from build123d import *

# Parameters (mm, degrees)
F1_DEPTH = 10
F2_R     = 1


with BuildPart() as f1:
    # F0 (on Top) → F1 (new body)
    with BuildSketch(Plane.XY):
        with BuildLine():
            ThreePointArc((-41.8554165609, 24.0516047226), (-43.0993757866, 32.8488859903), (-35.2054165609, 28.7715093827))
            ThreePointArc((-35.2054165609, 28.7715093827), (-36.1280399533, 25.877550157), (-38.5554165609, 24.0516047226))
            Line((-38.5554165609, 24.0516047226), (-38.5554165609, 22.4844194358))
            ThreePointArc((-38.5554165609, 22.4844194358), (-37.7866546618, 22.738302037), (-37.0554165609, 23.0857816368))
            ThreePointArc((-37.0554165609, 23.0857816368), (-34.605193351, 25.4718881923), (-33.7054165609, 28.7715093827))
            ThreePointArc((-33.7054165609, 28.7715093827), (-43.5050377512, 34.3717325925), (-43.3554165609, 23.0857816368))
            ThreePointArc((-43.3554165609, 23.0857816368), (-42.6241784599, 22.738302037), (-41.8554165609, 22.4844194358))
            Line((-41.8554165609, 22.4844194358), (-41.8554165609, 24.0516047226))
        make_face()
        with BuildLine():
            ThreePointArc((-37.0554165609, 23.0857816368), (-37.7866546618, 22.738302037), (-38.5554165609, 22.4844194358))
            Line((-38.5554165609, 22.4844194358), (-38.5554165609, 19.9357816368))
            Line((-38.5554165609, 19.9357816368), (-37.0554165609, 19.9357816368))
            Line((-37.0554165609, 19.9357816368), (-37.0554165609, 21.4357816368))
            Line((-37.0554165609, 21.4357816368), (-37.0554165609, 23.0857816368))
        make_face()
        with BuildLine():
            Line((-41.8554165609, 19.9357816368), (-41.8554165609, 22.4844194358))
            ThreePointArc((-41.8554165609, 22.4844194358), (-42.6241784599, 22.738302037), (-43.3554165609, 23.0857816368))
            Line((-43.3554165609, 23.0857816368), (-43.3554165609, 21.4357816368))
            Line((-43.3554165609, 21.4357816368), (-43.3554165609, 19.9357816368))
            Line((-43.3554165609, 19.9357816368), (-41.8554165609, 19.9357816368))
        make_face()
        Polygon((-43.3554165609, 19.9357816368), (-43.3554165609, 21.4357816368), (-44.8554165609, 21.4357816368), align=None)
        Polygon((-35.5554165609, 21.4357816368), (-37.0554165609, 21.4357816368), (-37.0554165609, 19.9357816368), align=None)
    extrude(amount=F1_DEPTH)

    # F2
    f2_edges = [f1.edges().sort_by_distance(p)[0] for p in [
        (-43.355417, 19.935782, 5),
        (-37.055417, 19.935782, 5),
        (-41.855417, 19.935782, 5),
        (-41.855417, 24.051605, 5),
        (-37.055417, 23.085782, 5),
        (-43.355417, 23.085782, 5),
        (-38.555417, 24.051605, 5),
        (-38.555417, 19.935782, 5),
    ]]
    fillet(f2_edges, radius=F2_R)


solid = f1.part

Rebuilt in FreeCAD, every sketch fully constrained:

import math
import FreeCAD as App
import Part
import Sketcher
Q = App.Units.Quantity


def edges_at(feature, points):
    """Names of the edges that pass closest to the given points."""
    edges = feature.Shape.Edges
    near = lambda p: min(range(len(edges)), key=lambda i: edges[i].distToShape(Part.Vertex(*p))[0])
    return sorted({f"Edge{near(p) + 1}" for p in points})

doc = App.newDocument("Part")
params = doc.addObject("Spreadsheet::Sheet", "Params")
for row, (alias, value) in enumerate([
    ("sketch1_radius", "5 mm"),
    ("sketch1_radius2", "6.5 mm"),
    ("sketch1_width", "1.5 mm"),
    ("sketch1_height", "1.65 mm"),
    ("pad1_length", "10 mm"),
    ("fillet_radius", "1 mm"),
], start=1):
    params.set(f"A{row}", alias)
    params.set(f"B{row}", "=" + value)
    params.setAlias(f"B{row}", alias)

body = doc.addObject("PartDesign::Body", "Body")

sketch1 = body.newObject("Sketcher::SketchObject", "Sketch")
sketch1.AttachmentSupport = (doc.getObject("XY_Plane"), [""])
sketch1.MapMode = "FlatFace"
sketch1.addGeometry(Part.ArcOfCircle(Part.Circle(App.Vector(-40.2, 28.8, 0), App.Vector(0, 0, 1), 5), math.radians(0), math.radians(251)), False)
sketch1.addGeometry(Part.ArcOfCircle(Part.Circle(App.Vector(-40.2, 28.8, 0), App.Vector(0, 0, 1), 5), math.radians(-71), math.radians(0)), False)
sketch1.addGeometry(Part.LineSegment(App.Vector(-38.6, 24.1, 0), App.Vector(-38.6, 19.9, 0)), False)
sketch1.addGeometry(Part.LineSegment(App.Vector(-38.6, 19.9, 0), App.Vector(-37.1, 19.9, 0)), False)
sketch1.addGeometry(Part.LineSegment(App.Vector(-37.1, 19.9, 0), App.Vector(-35.6, 21.4, 0)), False)
sketch1.addGeometry(Part.LineSegment(App.Vector(-35.6, 21.4, 0), App.Vector(-37.1, 21.4, 0)), False)
sketch1.addGeometry(Part.LineSegment(App.Vector(-37.1, 21.4, 0), App.Vector(-37.1, 23.1, 0)), False)
sketch1.addGeometry(Part.ArcOfCircle(Part.Circle(App.Vector(-40.2, 28.8, 0), App.Vector(0, 0, 1), 6.5), math.radians(-61), math.radians(0)), False)
sketch1.addGeometry(Part.ArcOfCircle(Part.Circle(App.Vector(-40.2, 28.8, 0), App.Vector(0, 0, 1), 6.5), math.radians(0), math.radians(241)), False)
sketch1.addGeometry(Part.LineSegment(App.Vector(-43.4, 23.1, 0), App.Vector(-43.4, 21.4, 0)), False)
sketch1.addGeometry(Part.LineSegment(App.Vector(-43.4, 21.4, 0), App.Vector(-44.9, 21.4, 0)), False)
sketch1.addGeometry(Part.LineSegment(App.Vector(-44.9, 21.4, 0), App.Vector(-43.4, 19.9, 0)), False)
sketch1.addGeometry(Part.LineSegment(App.Vector(-43.4, 19.9, 0), App.Vector(-41.9, 19.9, 0)), False)
sketch1.addGeometry(Part.LineSegment(App.Vector(-41.9, 19.9, 0), App.Vector(-41.9, 24.1, 0)), False)
sketch1.addConstraint(Sketcher.Constraint("Tangent", 0, 1, 1, 2))
sketch1.addConstraint(Sketcher.Constraint("Coincident", 1, 1, 2, 1))
sketch1.addConstraint(Sketcher.Constraint("Coincident", 2, 2, 3, 1))
sketch1.addConstraint(Sketcher.Constraint("Coincident", 3, 2, 4, 1))
sketch1.addConstraint(Sketcher.Constraint("Coincident", 4, 2, 5, 1))
sketch1.addConstraint(Sketcher.Constraint("Coincident", 5, 2, 6, 1))
sketch1.addConstraint(Sketcher.Constraint("Coincident", 6, 2, 7, 1))
sketch1.addConstraint(Sketcher.Constraint("Tangent", 7, 2, 8, 1))
sketch1.addConstraint(Sketcher.Constraint("Coincident", 8, 2, 9, 1))
sketch1.addConstraint(Sketcher.Constraint("Coincident", 9, 2, 10, 1))
sketch1.addConstraint(Sketcher.Constraint("Coincident", 10, 2, 11, 1))
sketch1.addConstraint(Sketcher.Constraint("Coincident", 11, 2, 12, 1))
sketch1.addConstraint(Sketcher.Constraint("Coincident", 12, 2, 13, 1))
sketch1.addConstraint(Sketcher.Constraint("Coincident", 13, 2, 0, 2))
sketch1.addConstraint(Sketcher.Constraint("Vertical", 2))
sketch1.addConstraint(Sketcher.Constraint("Horizontal", 3))
sketch1.addConstraint(Sketcher.Constraint("Horizontal", 5))
sketch1.addConstraint(Sketcher.Constraint("Vertical", 6))
sketch1.addConstraint(Sketcher.Constraint("Vertical", 9))
sketch1.addConstraint(Sketcher.Constraint("Horizontal", 10))
sketch1.addConstraint(Sketcher.Constraint("Horizontal", 12))
sketch1.addConstraint(Sketcher.Constraint("Vertical", 13))
sketch1.addConstraint(Sketcher.Constraint("Coincident", 7, 3, 0, 3))
sketch1.addConstraint(Sketcher.Constraint("Equal", 0, 1))
sketch1.addConstraint(Sketcher.Constraint("Equal", 7, 8))
sketch1.addConstraint(Sketcher.Constraint("Perpendicular", 4, 11))
sketch1.addConstraint(Sketcher.Constraint("Horizontal", 8, 3, 0, 1))
sketch1.addConstraint(Sketcher.Constraint("Horizontal", 0, 1, 7, 2))
sketch1.addConstraint(Sketcher.Constraint("Horizontal", 6, 2, 8, 2))
sketch1.addConstraint(Sketcher.Constraint("Horizontal", 5, 2, 9, 2))
sketch1.addConstraint(Sketcher.Constraint("Horizontal", 3, 2, 11, 2))
sketch1.addConstraint(Sketcher.Constraint("Horizontal", 1, 1, 13, 2))
sketch1.addConstraint(Sketcher.Constraint("Vertical", 3, 2, 5, 2))
sketch1.addConstraint(Sketcher.Constraint("Vertical", 9, 2, 11, 2))
sketch1.addConstraint(Sketcher.Constraint("Equal", 3, 5))
sketch1.addConstraint(Sketcher.Constraint("Equal", 5, 10))
sketch1.addConstraint(Sketcher.Constraint("Radius", 0, Q("5 mm")))
sketch1.addConstraint(Sketcher.Constraint("Radius", 7, Q("6.5 mm")))
sketch1.addConstraint(Sketcher.Constraint("DistanceX", 3, 1, 3, 2, Q("1.5 mm")))
sketch1.addConstraint(Sketcher.Constraint("DistanceY", 6, 1, 6, 2, Q("1.65 mm")))
sketch1.addConstraint(Sketcher.Constraint("DistanceX", 8, 2, 1, 1, Q("4.8 mm")))
sketch1.addConstraint(Sketcher.Constraint("DistanceY", -1, 1, 0, 3, Q("28.771509 mm")))
sketch1.addConstraint(Sketcher.Constraint("DistanceX", 0, 3, -1, 1, Q("40.205417 mm")))
sketch1.setExpression("Constraints[36]", "Params.sketch1_radius")
sketch1.setExpression("Constraints[37]", "Params.sketch1_radius2")
sketch1.setExpression("Constraints[38]", "Params.sketch1_width")
sketch1.setExpression("Constraints[39]", "Params.sketch1_height")
pad1 = body.newObject("PartDesign::Pad", "Pad")
pad1.Profile = sketch1
pad1.setExpression("Length", "Params.pad1_length")
doc.recompute()

fillet = body.newObject("PartDesign::Fillet", "Fillet")
fillet.Base = (pad1, edges_at(pad1, [
    (-43.355, 19.936, 5),
    (-37.055, 19.936, 5),
    (-41.855, 19.936, 5),
    (-41.855, 24.052, 5),
    (-37.055, 23.086, 5),
    (-43.355, 23.086, 5),
    (-38.555, 24.052, 5),
    (-38.555, 19.936, 5),
]))
fillet.setExpression("Radius", "Params.fillet_radius")

doc.recompute()
